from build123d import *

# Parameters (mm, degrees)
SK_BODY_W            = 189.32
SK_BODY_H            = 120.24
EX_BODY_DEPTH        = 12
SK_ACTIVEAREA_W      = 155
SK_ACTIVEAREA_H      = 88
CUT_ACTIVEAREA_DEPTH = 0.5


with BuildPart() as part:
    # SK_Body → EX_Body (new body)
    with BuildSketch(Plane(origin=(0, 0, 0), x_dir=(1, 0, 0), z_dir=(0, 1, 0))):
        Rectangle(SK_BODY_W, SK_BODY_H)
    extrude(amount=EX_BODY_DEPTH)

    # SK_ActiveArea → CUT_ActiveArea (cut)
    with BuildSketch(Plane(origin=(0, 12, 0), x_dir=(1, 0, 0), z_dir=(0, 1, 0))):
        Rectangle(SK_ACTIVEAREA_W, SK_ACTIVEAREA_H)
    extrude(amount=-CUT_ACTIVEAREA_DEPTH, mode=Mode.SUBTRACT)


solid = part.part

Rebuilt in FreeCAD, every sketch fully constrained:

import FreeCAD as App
import Part
import Sketcher
Q = App.Units.Quantity

doc = App.newDocument("Part")
params = doc.addObject("Spreadsheet::Sheet", "Params")
for row, (alias, value) in enumerate([
    ("sketch1_width", "189.32 mm"),
    ("sketch1_height", "120.24 mm"),
    ("pad1_length", "12 mm"),
    ("sketch2_width", "155 mm"),
    ("sketch2_height", "88 mm"),
    ("pocket1_length", "0.5 mm"),
], start=1):
    params.set(f"A{row}", alias)
    params.set(f"B{row}", "=" + value)
    params.setAlias(f"B{row}", alias)

body = doc.addObject("PartDesign::Body", "Body")

# Sketch on XZ plane
sketch1 = body.newObject("Sketcher::SketchObject", "Sketch")
sketch1.AttachmentSupport = (doc.getObject("XZ_Plane"), [""])
sketch1.MapMode = "FlatFace"
sketch1.addGeometry([
    Part.LineSegment(App.Vector(-95, -60, 0), App.Vector(-95, 60, 0)),
    Part.LineSegment(App.Vector(-95, 60, 0), App.Vector(95, 60, 0)),
    Part.LineSegment(App.Vector(95, 60, 0), App.Vector(95, -60, 0)),
    Part.LineSegment(App.Vector(95, -60, 0), App.Vector(-95, -60, 0)),
], False)
sketch1.addConstraint([
    Sketcher.Constraint("Coincident", 0, 2, 1, 1),
    Sketcher.Constraint("Coincident", 1, 2, 2, 1),
    Sketcher.Constraint("Coincident", 2, 2, 3, 1),
    Sketcher.Constraint("Coincident", 3, 2, 0, 1),
    Sketcher.Constraint("Vertical", 0),
    Sketcher.Constraint("Horizontal", 1),
    Sketcher.Constraint("Vertical", 2),
    Sketcher.Constraint("Horizontal", 3),
    Sketcher.Constraint("Symmetric", 0, 2, 2, 2, -1, 1),
    Sketcher.Constraint("DistanceX", 1, 1, 1, 2, Q("189.32 mm")),
    Sketcher.Constraint("DistanceY", 0, 1, 0, 2, Q("120.24 mm")),
])
sketch1.setExpression("Constraints[9]", "Params.sketch1_width")
sketch1.setExpression("Constraints[10]", "Params.sketch1_height")
pad1 = body.newObject("PartDesign::Pad", "Pad")
pad1.Profile = sketch1
pad1.setExpression("Length", "Params.pad1_length")
pad1.Reversed = True

# Sketch on XZ plane
sketch2 = body.newObject("Sketcher::SketchObject", "Sketch001")
sketch2.AttachmentSupport = (doc.getObject("XZ_Plane"), [""])
sketch2.MapMode = "FlatFace"
sketch2.AttachmentOffset = App.Placement(App.Vector(0, 0, -12), App.Rotation())
sketch2.addGeometry([
    Part.LineSegment(App.Vector(-78, -44, 0), App.Vector(-78, 44, 0)),
    Part.LineSegment(App.Vector(-78, 44, 0), App.Vector(78, 44, 0)),
    Part.LineSegment(App.Vector(78, 44, 0), App.Vector(78, -44, 0)),
    Part.LineSegment(App.Vector(78, -44, 0), App.Vector(-78, -44, 0)),
], False)
sketch2.addConstraint([
    Sketcher.Constraint("Coincident", 0, 2, 1, 1),
    Sketcher.Constraint("Coincident", 1, 2, 2, 1),
    Sketcher.Constraint("Coincident", 2, 2, 3, 1),
    Sketcher.Constraint("Coincident", 3, 2, 0, 1),
    Sketcher.Constraint("Vertical", 0),
    Sketcher.Constraint("Horizontal", 1),
    Sketcher.Constraint("Vertical", 2),
    Sketcher.Constraint("Horizontal", 3),
    Sketcher.Constraint("Symmetric", 0, 2, 2, 2, -1, 1),
    Sketcher.Constraint("DistanceX", 1, 1, 1, 2, Q("155 mm")),
    Sketcher.Constraint("DistanceY", 0, 1, 0, 2, Q("88 mm")),
])
sketch2.setExpression("Constraints[9]", "Params.sketch2_width")
sketch2.setExpression("Constraints[10]", "Params.sketch2_height")
pocket1 = body.newObject("PartDesign::Pocket", "Pocket")
pocket1.Profile = sketch2
pocket1.setExpression("Length", "Params.pocket1_length")
pocket1.Reversed = True

doc.recompute()
